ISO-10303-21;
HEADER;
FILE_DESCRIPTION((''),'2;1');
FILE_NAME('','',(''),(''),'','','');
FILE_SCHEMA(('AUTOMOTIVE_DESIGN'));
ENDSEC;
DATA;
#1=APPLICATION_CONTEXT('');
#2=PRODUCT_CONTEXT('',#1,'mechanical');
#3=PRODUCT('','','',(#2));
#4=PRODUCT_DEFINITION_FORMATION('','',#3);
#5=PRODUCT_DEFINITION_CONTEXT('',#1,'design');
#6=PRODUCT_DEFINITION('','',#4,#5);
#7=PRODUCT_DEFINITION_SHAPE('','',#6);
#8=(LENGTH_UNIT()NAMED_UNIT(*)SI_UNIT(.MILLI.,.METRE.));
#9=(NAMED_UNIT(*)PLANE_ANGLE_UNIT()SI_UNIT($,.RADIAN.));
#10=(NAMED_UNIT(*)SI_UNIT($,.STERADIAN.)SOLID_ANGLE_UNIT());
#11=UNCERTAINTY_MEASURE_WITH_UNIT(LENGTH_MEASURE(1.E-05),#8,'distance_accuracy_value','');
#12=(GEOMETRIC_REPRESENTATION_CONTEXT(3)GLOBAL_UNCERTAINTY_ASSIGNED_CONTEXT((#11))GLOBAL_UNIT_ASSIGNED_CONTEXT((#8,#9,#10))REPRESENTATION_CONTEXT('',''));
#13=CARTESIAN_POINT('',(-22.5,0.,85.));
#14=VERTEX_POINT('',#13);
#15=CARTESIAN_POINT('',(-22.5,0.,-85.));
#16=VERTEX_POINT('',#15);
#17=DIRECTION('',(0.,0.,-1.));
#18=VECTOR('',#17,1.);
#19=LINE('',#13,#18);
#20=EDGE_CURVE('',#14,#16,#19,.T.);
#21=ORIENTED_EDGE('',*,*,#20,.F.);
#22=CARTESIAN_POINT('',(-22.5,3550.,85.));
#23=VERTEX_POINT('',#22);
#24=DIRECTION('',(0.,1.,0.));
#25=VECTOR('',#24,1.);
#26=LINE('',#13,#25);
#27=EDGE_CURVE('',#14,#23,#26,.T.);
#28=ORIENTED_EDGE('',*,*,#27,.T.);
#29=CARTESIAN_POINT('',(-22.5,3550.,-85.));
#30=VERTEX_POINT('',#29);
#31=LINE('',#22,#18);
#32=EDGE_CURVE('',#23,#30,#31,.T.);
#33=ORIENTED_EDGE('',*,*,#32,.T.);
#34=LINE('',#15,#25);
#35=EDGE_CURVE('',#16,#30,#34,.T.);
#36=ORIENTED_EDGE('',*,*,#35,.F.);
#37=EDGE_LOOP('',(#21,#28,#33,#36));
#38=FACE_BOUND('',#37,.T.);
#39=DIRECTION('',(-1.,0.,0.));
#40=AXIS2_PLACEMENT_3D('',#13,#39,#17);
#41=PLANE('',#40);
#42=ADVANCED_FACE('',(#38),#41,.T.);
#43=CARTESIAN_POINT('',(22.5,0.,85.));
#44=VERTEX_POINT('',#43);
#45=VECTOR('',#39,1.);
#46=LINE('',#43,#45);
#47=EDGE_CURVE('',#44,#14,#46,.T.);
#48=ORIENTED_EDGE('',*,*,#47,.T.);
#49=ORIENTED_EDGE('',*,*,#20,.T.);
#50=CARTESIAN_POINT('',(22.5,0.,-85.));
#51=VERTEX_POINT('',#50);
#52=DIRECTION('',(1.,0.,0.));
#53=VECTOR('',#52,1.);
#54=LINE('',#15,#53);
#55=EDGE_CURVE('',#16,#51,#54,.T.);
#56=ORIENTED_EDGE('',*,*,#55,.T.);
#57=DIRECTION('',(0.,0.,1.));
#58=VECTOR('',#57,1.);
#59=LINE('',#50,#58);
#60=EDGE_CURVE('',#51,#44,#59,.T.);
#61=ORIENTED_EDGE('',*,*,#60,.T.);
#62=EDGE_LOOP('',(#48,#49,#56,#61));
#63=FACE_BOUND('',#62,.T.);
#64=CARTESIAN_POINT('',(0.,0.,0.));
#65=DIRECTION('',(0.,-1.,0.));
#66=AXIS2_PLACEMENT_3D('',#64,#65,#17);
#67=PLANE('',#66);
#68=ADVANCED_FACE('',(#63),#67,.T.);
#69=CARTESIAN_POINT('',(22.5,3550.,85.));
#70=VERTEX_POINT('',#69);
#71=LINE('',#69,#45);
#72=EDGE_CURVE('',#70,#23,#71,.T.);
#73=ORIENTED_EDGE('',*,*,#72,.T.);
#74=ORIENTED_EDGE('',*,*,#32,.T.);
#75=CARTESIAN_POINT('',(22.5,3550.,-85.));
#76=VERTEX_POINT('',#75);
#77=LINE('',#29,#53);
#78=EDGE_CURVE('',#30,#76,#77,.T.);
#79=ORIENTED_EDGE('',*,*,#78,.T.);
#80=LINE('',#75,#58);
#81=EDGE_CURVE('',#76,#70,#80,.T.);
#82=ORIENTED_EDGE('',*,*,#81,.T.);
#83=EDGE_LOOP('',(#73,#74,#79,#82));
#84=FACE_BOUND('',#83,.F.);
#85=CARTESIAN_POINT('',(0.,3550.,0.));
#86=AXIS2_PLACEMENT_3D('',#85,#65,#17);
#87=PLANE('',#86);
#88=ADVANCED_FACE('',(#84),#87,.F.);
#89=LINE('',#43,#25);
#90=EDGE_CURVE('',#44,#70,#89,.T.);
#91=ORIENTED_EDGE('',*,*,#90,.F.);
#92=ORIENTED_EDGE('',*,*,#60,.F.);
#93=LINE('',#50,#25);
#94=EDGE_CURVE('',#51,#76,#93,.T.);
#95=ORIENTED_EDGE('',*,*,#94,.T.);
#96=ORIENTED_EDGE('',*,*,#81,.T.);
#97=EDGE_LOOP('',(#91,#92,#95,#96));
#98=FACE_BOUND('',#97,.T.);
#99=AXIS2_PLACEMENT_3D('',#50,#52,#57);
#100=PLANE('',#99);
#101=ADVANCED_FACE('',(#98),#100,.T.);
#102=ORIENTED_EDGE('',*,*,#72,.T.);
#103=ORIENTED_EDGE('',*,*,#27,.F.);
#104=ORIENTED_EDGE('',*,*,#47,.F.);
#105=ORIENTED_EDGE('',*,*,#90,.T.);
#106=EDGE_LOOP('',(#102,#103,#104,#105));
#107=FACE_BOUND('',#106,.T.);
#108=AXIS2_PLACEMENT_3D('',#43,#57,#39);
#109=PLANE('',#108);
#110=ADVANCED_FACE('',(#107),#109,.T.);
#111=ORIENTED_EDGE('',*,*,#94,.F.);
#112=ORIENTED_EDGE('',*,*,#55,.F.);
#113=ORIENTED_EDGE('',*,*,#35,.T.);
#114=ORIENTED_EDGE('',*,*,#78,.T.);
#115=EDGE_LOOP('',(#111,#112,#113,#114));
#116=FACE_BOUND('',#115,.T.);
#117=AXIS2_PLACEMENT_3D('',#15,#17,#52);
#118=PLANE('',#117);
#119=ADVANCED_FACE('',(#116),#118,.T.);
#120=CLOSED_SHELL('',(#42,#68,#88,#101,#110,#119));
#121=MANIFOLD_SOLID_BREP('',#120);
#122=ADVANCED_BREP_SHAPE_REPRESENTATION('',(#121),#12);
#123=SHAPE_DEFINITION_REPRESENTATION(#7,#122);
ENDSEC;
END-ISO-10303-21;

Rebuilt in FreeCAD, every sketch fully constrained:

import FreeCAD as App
import Part
import Sketcher
from FreeCAD import Vector


def add_polygon(sketch, points):
    """Adds a closed chain of lines whose ends are joined by coincident constraints."""
    first, n = sketch.GeometryCount, len(points)
    for a, b in zip(points, points[1:] + points[:1]):
        sketch.addGeometry(Part.LineSegment(App.Vector(*a, 0), App.Vector(*b, 0)), False)
    for i in range(n):
        sketch.addConstraint(Sketcher.Constraint("Coincident", first + i, 2, first + (i + 1) % n, 1))

doc = App.newDocument("Part")
body = doc.addObject("PartDesign::Body", "Body")

sketch1 = doc.addObject("Sketcher::SketchObject", "Sketch")
body.addObject(sketch1)
sketch1.AttachmentSupport = (doc.XZ_Plane, [""])
sketch1.MapMode = "FlatFace"
add_polygon(sketch1, [(-22.5, 85), (-22.5, -85), (22.5, -85), (22.5, 85)])
sketch1.addConstraint(Sketcher.Constraint("Vertical", 0))
sketch1.addConstraint(Sketcher.Constraint("Horizontal", 1))
sketch1.addConstraint(Sketcher.Constraint("Vertical", 2))
sketch1.addConstraint(Sketcher.Constraint("Horizontal", 3))
sketch1.addConstraint(Sketcher.Constraint("Symmetric", 0, 2, 2, 2, -1, 1))
sketch1.addConstraint(Sketcher.Constraint("DistanceX", 1, 1, 1, 2, 45.0))
sketch1.addConstraint(Sketcher.Constraint("DistanceY", 0, 2, 0, 1, 170.0))
pad1 = doc.addObject("PartDesign::Pad", "Pad")
body.addObject(pad1)
pad1.Profile = sketch1
pad1.Length = 3550
pad1.Reversed = True

doc.recompute()
